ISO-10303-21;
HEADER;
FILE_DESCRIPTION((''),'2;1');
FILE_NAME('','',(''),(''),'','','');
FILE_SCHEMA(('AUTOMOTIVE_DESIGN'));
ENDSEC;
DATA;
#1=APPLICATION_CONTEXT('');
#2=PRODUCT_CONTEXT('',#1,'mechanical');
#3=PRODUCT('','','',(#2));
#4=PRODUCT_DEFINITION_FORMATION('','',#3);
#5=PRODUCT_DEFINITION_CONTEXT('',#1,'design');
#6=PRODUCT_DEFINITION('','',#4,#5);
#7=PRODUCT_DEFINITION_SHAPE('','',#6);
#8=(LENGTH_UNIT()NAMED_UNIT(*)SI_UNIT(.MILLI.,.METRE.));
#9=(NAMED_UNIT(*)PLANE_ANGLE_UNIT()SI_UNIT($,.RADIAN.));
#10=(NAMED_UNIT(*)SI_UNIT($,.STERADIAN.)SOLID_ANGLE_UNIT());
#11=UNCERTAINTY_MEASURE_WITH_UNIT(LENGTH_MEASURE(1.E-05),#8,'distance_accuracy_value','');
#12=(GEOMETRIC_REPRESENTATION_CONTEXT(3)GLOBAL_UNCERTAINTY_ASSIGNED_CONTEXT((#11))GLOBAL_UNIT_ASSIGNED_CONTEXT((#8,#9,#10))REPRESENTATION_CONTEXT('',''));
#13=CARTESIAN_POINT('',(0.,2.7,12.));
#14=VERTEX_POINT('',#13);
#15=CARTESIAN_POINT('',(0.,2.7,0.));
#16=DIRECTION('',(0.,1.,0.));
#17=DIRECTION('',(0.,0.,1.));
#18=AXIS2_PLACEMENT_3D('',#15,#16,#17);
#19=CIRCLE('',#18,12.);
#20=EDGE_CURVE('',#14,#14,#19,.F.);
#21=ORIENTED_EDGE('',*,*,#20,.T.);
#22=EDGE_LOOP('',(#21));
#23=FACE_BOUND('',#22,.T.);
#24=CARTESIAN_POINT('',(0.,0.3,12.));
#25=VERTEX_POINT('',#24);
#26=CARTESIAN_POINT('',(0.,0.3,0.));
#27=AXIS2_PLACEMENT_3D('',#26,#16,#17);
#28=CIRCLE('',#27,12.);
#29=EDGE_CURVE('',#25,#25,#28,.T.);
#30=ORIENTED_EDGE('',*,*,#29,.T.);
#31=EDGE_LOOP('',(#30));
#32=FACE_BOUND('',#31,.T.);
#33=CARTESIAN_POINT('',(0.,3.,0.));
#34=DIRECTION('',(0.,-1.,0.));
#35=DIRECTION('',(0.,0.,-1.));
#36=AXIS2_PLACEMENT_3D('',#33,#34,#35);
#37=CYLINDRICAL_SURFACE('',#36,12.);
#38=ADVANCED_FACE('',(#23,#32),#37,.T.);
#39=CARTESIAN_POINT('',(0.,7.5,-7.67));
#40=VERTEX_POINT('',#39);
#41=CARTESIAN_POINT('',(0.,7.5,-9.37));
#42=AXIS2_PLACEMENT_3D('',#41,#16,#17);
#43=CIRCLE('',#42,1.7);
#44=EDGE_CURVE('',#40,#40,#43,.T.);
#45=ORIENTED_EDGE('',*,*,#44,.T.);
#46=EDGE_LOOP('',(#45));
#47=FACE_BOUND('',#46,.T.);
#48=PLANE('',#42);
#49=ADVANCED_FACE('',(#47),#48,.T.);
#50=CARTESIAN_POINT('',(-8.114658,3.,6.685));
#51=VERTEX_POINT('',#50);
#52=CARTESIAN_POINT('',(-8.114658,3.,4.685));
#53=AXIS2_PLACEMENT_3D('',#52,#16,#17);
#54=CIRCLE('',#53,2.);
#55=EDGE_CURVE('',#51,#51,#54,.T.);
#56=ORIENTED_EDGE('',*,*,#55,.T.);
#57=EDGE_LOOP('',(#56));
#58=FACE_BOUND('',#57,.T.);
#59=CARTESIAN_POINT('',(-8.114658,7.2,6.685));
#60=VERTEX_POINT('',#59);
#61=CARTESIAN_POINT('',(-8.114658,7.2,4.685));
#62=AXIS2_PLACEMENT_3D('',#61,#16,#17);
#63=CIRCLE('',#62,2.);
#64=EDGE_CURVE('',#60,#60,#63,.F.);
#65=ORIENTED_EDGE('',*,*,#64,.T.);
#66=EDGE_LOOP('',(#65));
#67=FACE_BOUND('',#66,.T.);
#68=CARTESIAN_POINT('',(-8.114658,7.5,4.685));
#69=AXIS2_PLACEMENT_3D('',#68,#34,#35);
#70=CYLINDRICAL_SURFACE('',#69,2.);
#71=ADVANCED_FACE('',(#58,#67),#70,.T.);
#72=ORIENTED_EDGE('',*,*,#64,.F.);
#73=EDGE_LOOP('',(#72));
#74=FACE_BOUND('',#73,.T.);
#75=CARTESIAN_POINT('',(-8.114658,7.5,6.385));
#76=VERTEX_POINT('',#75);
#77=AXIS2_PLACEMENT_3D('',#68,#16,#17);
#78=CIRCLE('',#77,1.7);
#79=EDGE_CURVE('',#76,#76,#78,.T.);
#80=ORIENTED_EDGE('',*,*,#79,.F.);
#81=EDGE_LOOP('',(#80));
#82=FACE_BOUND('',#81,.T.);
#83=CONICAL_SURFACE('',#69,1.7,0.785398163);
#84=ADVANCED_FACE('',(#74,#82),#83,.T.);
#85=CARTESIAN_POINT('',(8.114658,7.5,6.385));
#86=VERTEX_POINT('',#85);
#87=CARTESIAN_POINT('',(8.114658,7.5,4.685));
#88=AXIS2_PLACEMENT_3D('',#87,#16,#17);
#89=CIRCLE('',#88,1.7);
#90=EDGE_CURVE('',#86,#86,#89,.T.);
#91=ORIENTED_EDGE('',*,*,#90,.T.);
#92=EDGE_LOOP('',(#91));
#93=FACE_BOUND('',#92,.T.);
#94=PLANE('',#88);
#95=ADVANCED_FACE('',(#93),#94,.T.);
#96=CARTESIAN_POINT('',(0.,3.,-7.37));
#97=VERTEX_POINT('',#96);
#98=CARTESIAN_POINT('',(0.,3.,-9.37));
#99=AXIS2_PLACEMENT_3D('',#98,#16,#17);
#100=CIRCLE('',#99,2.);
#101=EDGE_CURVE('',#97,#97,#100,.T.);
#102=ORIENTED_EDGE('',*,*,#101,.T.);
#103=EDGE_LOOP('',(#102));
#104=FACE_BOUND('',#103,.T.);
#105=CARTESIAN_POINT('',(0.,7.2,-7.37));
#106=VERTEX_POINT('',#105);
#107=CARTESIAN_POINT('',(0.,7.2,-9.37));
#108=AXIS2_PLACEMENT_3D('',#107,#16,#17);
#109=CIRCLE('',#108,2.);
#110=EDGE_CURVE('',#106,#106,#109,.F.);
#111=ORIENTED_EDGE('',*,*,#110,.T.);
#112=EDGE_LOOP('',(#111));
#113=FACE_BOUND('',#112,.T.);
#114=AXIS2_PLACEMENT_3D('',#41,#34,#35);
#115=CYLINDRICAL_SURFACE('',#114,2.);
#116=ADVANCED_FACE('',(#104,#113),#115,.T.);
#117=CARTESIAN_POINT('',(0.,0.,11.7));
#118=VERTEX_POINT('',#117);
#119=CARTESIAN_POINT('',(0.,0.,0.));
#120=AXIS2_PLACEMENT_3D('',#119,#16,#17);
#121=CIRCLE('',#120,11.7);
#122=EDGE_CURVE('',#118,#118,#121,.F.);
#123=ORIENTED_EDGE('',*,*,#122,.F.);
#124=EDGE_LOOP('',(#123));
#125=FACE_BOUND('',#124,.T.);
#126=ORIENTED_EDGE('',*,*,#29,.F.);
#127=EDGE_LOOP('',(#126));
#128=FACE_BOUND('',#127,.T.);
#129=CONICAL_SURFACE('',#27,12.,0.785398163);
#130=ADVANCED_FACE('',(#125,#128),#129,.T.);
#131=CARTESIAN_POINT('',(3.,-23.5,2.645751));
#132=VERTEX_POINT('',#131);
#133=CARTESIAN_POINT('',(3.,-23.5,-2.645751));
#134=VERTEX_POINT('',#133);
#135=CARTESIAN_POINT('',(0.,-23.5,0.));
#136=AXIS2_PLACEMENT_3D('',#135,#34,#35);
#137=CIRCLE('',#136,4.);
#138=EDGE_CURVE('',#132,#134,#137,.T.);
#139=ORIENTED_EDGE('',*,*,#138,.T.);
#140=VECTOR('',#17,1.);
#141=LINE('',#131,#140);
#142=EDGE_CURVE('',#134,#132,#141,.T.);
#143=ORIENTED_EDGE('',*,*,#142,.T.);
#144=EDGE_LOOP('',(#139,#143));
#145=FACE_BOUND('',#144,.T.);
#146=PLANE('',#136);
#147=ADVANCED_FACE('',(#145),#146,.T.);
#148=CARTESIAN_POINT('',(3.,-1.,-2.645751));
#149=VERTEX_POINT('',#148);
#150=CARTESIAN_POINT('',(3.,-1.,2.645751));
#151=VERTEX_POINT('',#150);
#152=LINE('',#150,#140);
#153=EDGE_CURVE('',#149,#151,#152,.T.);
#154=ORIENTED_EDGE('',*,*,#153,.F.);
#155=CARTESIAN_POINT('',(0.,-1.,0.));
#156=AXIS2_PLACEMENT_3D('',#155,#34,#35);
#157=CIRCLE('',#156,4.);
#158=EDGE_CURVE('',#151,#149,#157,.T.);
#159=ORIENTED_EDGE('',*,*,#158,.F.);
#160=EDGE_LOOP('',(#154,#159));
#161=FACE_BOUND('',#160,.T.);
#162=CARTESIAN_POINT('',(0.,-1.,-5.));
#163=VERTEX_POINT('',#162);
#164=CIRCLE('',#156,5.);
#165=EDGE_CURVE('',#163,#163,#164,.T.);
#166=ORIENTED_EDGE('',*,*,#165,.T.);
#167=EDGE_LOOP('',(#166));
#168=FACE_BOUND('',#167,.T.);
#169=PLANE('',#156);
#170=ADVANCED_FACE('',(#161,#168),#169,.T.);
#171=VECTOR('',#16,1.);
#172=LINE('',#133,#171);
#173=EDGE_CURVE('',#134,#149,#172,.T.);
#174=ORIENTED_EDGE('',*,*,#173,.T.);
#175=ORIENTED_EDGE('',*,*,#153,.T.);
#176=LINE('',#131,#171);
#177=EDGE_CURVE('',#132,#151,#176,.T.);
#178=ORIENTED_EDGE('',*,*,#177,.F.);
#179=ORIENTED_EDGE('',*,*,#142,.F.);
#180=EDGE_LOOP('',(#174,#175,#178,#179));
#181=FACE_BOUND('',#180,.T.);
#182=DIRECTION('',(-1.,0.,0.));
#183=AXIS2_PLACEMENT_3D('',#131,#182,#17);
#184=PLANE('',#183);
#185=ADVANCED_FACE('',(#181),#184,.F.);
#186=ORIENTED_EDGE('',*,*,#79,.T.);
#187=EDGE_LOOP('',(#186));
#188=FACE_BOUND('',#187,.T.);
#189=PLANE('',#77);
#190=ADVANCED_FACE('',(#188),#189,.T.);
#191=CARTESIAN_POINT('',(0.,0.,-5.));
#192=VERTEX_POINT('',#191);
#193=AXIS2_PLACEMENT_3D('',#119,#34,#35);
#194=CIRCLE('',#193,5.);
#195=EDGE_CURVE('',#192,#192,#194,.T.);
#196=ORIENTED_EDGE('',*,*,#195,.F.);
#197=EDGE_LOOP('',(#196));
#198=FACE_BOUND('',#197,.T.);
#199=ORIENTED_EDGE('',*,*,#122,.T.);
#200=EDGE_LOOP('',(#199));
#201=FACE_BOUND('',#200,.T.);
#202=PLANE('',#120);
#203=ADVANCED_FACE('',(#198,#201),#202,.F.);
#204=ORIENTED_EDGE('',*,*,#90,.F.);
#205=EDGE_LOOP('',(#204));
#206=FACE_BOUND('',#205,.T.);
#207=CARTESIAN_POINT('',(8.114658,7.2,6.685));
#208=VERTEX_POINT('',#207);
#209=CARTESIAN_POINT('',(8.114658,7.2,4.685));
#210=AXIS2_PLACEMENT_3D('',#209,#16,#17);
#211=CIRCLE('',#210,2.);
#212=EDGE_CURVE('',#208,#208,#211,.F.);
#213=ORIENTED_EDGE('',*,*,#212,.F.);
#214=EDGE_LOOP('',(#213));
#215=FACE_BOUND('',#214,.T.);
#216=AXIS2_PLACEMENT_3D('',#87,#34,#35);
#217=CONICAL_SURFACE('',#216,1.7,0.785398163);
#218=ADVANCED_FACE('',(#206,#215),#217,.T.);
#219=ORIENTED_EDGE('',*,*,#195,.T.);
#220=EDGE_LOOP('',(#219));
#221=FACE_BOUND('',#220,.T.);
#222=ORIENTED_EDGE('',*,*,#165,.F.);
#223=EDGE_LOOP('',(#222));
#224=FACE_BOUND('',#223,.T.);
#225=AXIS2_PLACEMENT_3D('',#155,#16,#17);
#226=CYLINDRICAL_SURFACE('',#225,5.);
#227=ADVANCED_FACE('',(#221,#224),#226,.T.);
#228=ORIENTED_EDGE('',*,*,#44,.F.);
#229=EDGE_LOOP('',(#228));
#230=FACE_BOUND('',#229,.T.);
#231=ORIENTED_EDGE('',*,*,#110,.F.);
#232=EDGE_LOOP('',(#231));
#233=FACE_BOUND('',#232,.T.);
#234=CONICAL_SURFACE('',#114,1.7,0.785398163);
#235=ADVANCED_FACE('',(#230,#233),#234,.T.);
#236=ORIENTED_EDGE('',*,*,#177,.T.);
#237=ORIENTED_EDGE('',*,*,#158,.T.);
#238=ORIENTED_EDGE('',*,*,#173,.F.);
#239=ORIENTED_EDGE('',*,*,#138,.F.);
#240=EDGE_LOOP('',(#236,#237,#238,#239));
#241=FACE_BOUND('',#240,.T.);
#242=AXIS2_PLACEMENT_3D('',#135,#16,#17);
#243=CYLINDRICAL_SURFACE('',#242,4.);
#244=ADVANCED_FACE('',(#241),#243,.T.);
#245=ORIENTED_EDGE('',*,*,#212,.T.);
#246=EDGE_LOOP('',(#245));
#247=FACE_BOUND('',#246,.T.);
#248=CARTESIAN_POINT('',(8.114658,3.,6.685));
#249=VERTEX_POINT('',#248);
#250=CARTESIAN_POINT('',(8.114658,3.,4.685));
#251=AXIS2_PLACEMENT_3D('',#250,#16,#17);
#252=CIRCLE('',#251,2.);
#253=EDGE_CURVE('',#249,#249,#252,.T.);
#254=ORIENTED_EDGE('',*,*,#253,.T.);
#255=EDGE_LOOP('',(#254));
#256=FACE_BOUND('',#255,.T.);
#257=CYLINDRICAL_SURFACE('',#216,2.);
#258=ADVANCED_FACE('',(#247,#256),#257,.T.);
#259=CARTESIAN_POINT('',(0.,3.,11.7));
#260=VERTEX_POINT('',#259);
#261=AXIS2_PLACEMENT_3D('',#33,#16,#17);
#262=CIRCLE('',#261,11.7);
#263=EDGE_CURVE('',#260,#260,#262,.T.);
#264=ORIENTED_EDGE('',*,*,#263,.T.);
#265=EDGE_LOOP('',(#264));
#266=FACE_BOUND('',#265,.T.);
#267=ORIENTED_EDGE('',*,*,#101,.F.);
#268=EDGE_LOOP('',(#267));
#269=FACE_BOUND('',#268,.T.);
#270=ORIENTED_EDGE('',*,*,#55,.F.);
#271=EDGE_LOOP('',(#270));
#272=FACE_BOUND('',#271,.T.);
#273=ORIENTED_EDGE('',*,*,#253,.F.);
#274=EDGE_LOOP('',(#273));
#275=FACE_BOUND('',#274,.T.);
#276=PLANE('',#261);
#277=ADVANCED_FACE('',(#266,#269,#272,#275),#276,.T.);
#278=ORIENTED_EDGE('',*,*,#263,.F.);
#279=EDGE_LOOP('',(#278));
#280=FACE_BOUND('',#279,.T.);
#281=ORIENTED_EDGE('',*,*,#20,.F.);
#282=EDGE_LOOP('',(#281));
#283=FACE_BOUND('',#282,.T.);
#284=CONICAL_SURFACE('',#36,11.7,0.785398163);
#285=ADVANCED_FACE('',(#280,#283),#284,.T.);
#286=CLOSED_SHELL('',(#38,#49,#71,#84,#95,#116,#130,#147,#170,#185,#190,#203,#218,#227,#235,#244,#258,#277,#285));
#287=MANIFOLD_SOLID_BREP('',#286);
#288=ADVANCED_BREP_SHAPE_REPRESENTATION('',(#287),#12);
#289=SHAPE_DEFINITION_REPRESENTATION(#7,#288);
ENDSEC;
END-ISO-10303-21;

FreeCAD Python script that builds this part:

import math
import FreeCAD as App
import Part
import Sketcher

V = App.Vector
Q = App.Units.Quantity


def edges_at(feature, points):
    """Names of the edges that pass closest to the given points."""
    edges = feature.Shape.Edges
    near = lambda p: min(range(len(edges)), key=lambda i: edges[i].distToShape(Part.Vertex(*p))[0])
    return sorted({f"Edge{near(p) + 1}" for p in points})

doc = App.newDocument("Part")
body = doc.addObject("PartDesign::Body", "Body")

sketch1 = body.newObject("Sketcher::SketchObject", "Sketch")
sketch1.AttachmentSupport = (doc.getObject("XZ_Plane"), [""])
sketch1.MapMode = "FlatFace"
sketch1.addGeometry(Part.Circle(V(0, 0, 0), V(0, 0, 1), 12), False)
sketch1.addConstraint([
    Sketcher.Constraint("Coincident", 0, 3, -1, 1),
    Sketcher.Constraint("Diameter", 0, Q("24 mm")),
])
pad1 = body.newObject("PartDesign::Pad", "Pad")
pad1.Profile = sketch1
pad1.Length = 3
pad1.Reversed = True

sketch2 = body.newObject("Sketcher::SketchObject", "Sketch001")
sketch2.AttachmentSupport = (doc.getObject("XZ_Plane"), [""])
sketch2.MapMode = "FlatFace"
sketch2.AttachmentOffset = App.Placement(V(0, 0, -3), App.Rotation())
sketch2.addGeometry([
    Part.Circle(V(0, -9.4, 0), V(0, 0, 1), 2),
    Part.Circle(V(-8.1, 4.7, 0), V(0, 0, 1), 2),
    Part.Circle(V(8.1, 4.7, 0), V(0, 0, 1), 2),
], False)
sketch2.addConstraint([
    Sketcher.Constraint("Equal", 0, 1),
    Sketcher.Constraint("Equal", 1, 2),
    Sketcher.Constraint("Symmetric", 1, 3, 2, 3, -2),
    Sketcher.Constraint("PointOnObject", 0, 3, -2),
    Sketcher.Constraint("Diameter", 0, Q("4 mm")),
    Sketcher.Constraint("DistanceY", 0, 3, -1, 1, Q("9.37 mm")),
    Sketcher.Constraint("DistanceY", -1, 1, 1, 3, Q("4.685 mm")),
    Sketcher.Constraint("DistanceX", 1, 3, -1, 1, Q("8.114658 mm")),
])
pad2 = body.newObject("PartDesign::Pad", "Pad001")
pad2.Profile = sketch2
pad2.Length = 4.5
pad2.Reversed = True

sketch3 = body.newObject("Sketcher::SketchObject", "Sketch002")
sketch3.AttachmentSupport = (doc.getObject("XZ_Plane"), [""])
sketch3.MapMode = "FlatFace"
sketch3.addGeometry(Part.Circle(V(0, 0, 0), V(0, 0, 1), 5), False)
sketch3.addConstraint([
    Sketcher.Constraint("Coincident", 0, 3, -1, 1),
    Sketcher.Constraint("Diameter", 0, Q("10 mm")),
])
pad3 = body.newObject("PartDesign::Pad", "Pad002")
pad3.Profile = sketch3
pad3.Length = 1

sketch4 = body.newObject("Sketcher::SketchObject", "Sketch003")
sketch4.AttachmentSupport = (doc.getObject("XZ_Plane"), [""])
sketch4.MapMode = "FlatFace"
sketch4.AttachmentOffset = App.Placement(V(0, 0, 1), App.Rotation())
sketch4.addGeometry([
    Part.LineSegment(V(3, -2.6, 0), V(3, 2.6, 0)),
    Part.ArcOfCircle(Part.Circle(V(0, 0, 0), V(0, 0, 1), 4), math.radians(41), math.radians(319)),
], False)
sketch4.addConstraint([
    Sketcher.Constraint("Coincident", 0, 1, 1, 2),
    Sketcher.Constraint("Coincident", 1, 1, 0, 2),
    Sketcher.Constraint("Vertical", 0),
    Sketcher.Constraint("Coincident", 1, 3, -1, 1),
    Sketcher.Constraint("Radius", 1, Q("4 mm")),
    Sketcher.Constraint("DistanceX", -1, 1, 0, 1, Q("3 mm")),
])
pad4 = body.newObject("PartDesign::Pad", "Pad003")
pad4.Profile = sketch4
pad4.Length = 22.5
doc.recompute()

chamfer = body.newObject("PartDesign::Chamfer", "Chamfer")
chamfer.Base = (pad4, edges_at(pad4, [
    (-8.115, 7.5, 2.685),
    (8.115, 7.5, 2.685),
    (0, 0, -12),
    (0, 3, -12),
    (0, 7.5, -11.37),
]))
chamfer.Size = 0.3

doc.recompute()
